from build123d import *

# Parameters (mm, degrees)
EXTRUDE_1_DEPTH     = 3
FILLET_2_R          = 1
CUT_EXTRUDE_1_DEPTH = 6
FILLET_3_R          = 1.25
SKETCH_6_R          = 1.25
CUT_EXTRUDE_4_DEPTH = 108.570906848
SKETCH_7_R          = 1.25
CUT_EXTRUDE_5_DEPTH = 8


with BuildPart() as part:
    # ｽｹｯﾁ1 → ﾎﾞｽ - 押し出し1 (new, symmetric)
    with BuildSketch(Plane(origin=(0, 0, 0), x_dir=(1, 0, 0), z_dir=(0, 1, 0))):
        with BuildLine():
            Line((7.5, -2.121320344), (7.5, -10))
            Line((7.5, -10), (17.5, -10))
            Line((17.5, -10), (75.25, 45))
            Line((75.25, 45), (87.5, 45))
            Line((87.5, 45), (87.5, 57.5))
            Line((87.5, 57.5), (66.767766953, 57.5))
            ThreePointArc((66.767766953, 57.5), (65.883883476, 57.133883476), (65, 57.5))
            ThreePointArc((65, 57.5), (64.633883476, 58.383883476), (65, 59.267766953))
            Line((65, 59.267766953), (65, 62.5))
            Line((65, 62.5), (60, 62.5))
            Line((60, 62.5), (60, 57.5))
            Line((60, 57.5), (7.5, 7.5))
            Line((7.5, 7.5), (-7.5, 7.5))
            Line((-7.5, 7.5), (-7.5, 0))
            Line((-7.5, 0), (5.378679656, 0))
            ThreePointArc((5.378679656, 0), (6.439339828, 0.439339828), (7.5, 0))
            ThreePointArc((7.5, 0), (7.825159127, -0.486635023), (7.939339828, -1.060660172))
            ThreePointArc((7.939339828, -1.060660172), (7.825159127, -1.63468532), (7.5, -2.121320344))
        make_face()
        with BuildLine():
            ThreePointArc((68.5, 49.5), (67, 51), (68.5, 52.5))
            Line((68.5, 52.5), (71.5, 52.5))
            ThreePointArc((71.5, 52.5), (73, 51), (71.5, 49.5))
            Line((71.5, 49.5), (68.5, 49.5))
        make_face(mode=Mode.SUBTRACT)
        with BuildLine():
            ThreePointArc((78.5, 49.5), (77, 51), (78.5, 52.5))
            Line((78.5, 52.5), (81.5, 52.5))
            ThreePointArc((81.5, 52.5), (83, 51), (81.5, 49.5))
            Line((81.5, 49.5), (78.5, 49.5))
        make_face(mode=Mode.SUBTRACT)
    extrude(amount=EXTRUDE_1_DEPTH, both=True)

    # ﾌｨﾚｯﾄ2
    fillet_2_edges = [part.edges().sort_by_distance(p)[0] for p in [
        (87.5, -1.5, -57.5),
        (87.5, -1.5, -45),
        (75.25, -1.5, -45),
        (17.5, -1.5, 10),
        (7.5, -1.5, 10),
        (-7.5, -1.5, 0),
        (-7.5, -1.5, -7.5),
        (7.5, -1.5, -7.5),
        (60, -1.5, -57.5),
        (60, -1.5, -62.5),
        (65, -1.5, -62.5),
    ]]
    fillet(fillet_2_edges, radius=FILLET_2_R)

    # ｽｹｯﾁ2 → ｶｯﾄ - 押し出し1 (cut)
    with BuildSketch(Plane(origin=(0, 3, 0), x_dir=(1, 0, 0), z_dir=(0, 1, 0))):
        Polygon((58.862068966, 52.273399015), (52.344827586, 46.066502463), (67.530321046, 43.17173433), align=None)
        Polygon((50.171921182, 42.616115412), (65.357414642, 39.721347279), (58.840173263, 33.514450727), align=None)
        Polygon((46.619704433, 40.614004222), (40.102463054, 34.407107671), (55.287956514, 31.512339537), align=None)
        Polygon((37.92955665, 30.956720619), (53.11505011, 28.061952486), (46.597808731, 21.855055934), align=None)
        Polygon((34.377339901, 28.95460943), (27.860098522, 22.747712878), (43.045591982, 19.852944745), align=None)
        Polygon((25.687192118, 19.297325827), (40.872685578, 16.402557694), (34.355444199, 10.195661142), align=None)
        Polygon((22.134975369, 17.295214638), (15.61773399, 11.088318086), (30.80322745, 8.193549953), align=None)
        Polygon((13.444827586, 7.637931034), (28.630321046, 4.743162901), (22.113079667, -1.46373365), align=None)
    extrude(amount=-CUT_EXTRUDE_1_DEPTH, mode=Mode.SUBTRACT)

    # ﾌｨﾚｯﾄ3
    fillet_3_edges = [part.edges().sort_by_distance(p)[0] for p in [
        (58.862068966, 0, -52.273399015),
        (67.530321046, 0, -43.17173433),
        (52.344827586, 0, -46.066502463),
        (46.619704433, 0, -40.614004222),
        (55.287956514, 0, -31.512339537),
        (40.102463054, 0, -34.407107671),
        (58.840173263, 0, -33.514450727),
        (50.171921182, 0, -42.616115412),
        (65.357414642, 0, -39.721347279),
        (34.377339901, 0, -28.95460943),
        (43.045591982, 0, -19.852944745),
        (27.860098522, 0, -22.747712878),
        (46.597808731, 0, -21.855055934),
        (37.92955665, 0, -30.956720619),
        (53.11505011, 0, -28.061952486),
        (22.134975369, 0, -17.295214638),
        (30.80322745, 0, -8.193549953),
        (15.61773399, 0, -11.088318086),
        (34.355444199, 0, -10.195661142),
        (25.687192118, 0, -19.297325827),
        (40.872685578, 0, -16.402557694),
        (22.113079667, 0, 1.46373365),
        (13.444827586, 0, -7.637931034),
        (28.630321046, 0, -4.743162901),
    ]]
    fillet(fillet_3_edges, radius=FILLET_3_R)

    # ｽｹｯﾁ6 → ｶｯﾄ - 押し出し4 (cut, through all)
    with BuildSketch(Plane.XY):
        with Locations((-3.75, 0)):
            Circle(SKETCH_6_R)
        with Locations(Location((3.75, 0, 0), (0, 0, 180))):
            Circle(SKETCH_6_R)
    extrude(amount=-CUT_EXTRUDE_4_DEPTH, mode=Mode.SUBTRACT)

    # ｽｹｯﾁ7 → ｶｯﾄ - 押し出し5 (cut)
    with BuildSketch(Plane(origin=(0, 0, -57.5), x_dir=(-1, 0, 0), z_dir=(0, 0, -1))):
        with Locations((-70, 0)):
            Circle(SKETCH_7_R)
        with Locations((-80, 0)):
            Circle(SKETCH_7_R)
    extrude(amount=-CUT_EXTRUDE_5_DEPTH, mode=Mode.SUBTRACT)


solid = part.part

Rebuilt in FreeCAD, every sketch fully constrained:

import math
import FreeCAD as App
import Part
import Sketcher

V = App.Vector


def edges_at(feature, points):
    """Names of the edges that pass closest to the given points."""
    edges = feature.Shape.Edges
    near = lambda p: min(range(len(edges)), key=lambda i: edges[i].distToShape(Part.Vertex(*p))[0])
    return sorted({f"Edge{near(p) + 1}" for p in points})

doc = App.newDocument("Part")
body = doc.addObject("PartDesign::Body", "Body")

sketch1 = body.newObject("Sketcher::SketchObject", "Sketch")
sketch1.AttachmentSupport = (doc.getObject("XZ_Plane"), [""])
sketch1.MapMode = "FlatFace"
sketch1.addGeometry(Part.LineSegment(V(7.5, 2.1, 0), V(7.5, 10, 0)), False)
sketch1.addGeometry(Part.LineSegment(V(7.5, 10, 0), V(17.5, 10, 0)), False)
sketch1.addGeometry(Part.LineSegment(V(17.5, 10, 0), V(75.2, -45, 0)), False)
sketch1.addGeometry(Part.LineSegment(V(75.2, -45, 0), V(87.5, -45, 0)), False)
sketch1.addGeometry(Part.LineSegment(V(87.5, -45, 0), V(87.5, -57.5, 0)), False)
sketch1.addGeometry(Part.LineSegment(V(87.5, -57.5, 0), V(66.8, -57.5, 0)), False)
sketch1.addGeometry(Part.ArcOfCircle(Part.Circle(V(65.9, -58.4, 0), V(0, 0, 1), 1.2), math.radians(45), math.radians(135)), False)
sketch1.addGeometry(Part.ArcOfCircle(Part.Circle(V(65.9, -58.4, 0), V(0, 0, 1), 1.2), math.radians(135), math.radians(225)), False)
sketch1.addGeometry(Part.LineSegment(V(65, -59.3, 0), V(65, -62.5, 0)), False)
sketch1.addGeometry(Part.LineSegment(V(65, -62.5, 0), V(60, -62.5, 0)), False)
sketch1.addGeometry(Part.LineSegment(V(60, -62.5, 0), V(60, -57.5, 0)), False)
sketch1.addGeometry(Part.LineSegment(V(60, -57.5, 0), V(7.5, -7.5, 0)), False)
sketch1.addGeometry(Part.LineSegment(V(7.5, -7.5, 0), V(-7.5, -7.5, 0)), False)
sketch1.addGeometry(Part.LineSegment(V(-7.5, -7.5, 0), V(-7.5, 0, 0)), False)
sketch1.addGeometry(Part.LineSegment(V(-7.5, 0, 0), V(5.4, 0, 0)), False)
sketch1.addGeometry(Part.ArcOfCircle(Part.Circle(V(6.4, 1.1, 0), V(0, 0, 1), 1.5), math.radians(-135), math.radians(-45)), False)
sketch1.addGeometry(Part.ArcOfCircle(Part.Circle(V(6.4, 1.1, 0), V(0, 0, 1), 1.5), math.radians(-45), math.radians(0)), False)
sketch1.addGeometry(Part.ArcOfCircle(Part.Circle(V(6.4, 1.1, 0), V(0, 0, 1), 1.5), math.radians(0), math.radians(45)), False)
sketch1.addGeometry(Part.LineSegment(V(71.5, -49.5, 0), V(68.5, -49.5, 0)), False)
sketch1.addGeometry(Part.ArcOfCircle(Part.Circle(V(68.5, -51, 0), V(0, 0, 1), 1.5), math.radians(90), math.radians(270)), False)
sketch1.addGeometry(Part.LineSegment(V(68.5, -52.5, 0), V(71.5, -52.5, 0)), False)
sketch1.addGeometry(Part.ArcOfCircle(Part.Circle(V(71.5, -51, 0), V(0, 0, 1), 1.5), math.radians(-90), math.radians(90)), False)
sketch1.addGeometry(Part.LineSegment(V(81.5, -49.5, 0), V(78.5, -49.5, 0)), False)
sketch1.addGeometry(Part.ArcOfCircle(Part.Circle(V(78.5, -51, 0), V(0, 0, 1), 1.5), math.radians(90), math.radians(270)), False)
sketch1.addGeometry(Part.LineSegment(V(78.5, -52.5, 0), V(81.5, -52.5, 0)), False)
sketch1.addGeometry(Part.ArcOfCircle(Part.Circle(V(81.5, -51, 0), V(0, 0, 1), 1.5), math.radians(-90), math.radians(90)), False)
sketch1.addConstraint(Sketcher.Constraint("Coincident", 0, 2, 1, 1))
sketch1.addConstraint(Sketcher.Constraint("Coincident", 1, 2, 2, 1))
sketch1.addConstraint(Sketcher.Constraint("Coincident", 2, 2, 3, 1))
sketch1.addConstraint(Sketcher.Constraint("Coincident", 3, 2, 4, 1))
sketch1.addConstraint(Sketcher.Constraint("Coincident", 4, 2, 5, 1))
sketch1.addConstraint(Sketcher.Constraint("Coincident", 5, 2, 6, 1))
sketch1.addConstraint(Sketcher.Constraint("Tangent", 6, 2, 7, 1))
sketch1.addConstraint(Sketcher.Constraint("Coincident", 7, 2, 8, 1))
sketch1.addConstraint(Sketcher.Constraint("Coincident", 8, 2, 9, 1))
sketch1.addConstraint(Sketcher.Constraint("Coincident", 9, 2, 10, 1))
sketch1.addConstraint(Sketcher.Constraint("Coincident", 10, 2, 11, 1))
sketch1.addConstraint(Sketcher.Constraint("Coincident", 11, 2, 12, 1))
sketch1.addConstraint(Sketcher.Constraint("Coincident", 12, 2, 13, 1))
sketch1.addConstraint(Sketcher.Constraint("Coincident", 13, 2, 14, 1))
sketch1.addConstraint(Sketcher.Constraint("Coincident", 14, 2, 15, 1))
sketch1.addConstraint(Sketcher.Constraint("Tangent", 15, 2, 16, 1))
sketch1.addConstraint(Sketcher.Constraint("Tangent", 16, 2, 17, 1))
sketch1.addConstraint(Sketcher.Constraint("Coincident", 17, 2, 0, 1))
sketch1.addConstraint(Sketcher.Constraint("Tangent", 18, 2, 19, 1))
sketch1.addConstraint(Sketcher.Constraint("Tangent", 19, 2, 20, 1))
sketch1.addConstraint(Sketcher.Constraint("Tangent", 20, 2, 21, 1))
sketch1.addConstraint(Sketcher.Constraint("Tangent", 21, 2, 18, 1))
sketch1.addConstraint(Sketcher.Constraint("Tangent", 22, 2, 23, 1))
sketch1.addConstraint(Sketcher.Constraint("Tangent", 23, 2, 24, 1))
sketch1.addConstraint(Sketcher.Constraint("Tangent", 24, 2, 25, 1))
sketch1.addConstraint(Sketcher.Constraint("Tangent", 25, 2, 22, 1))
sketch1.addConstraint(Sketcher.Constraint("Vertical", 0))
sketch1.addConstraint(Sketcher.Constraint("Horizontal", 1))
sketch1.addConstraint(Sketcher.Constraint("Horizontal", 3))
sketch1.addConstraint(Sketcher.Constraint("Vertical", 4))
sketch1.addConstraint(Sketcher.Constraint("Horizontal", 5))
sketch1.addConstraint(Sketcher.Constraint("Vertical", 8))
sketch1.addConstraint(Sketcher.Constraint("Horizontal", 9))
sketch1.addConstraint(Sketcher.Constraint("Vertical", 10))
sketch1.addConstraint(Sketcher.Constraint("Horizontal", 12))
sketch1.addConstraint(Sketcher.Constraint("Vertical", 13))
sketch1.addConstraint(Sketcher.Constraint("Horizontal", 14))
sketch1.addConstraint(Sketcher.Constraint("Horizontal", 18))
sketch1.addConstraint(Sketcher.Constraint("Horizontal", 20))
sketch1.addConstraint(Sketcher.Constraint("Horizontal", 22))
sketch1.addConstraint(Sketcher.Constraint("Horizontal", 24))
sketch1.addConstraint(Sketcher.Constraint("Coincident", 17, 3, 15, 3))
sketch1.addConstraint(Sketcher.Constraint("Equal", 6, 7))
sketch1.addConstraint(Sketcher.Constraint("Equal", 17, 19))
sketch1.addConstraint(Sketcher.Constraint("Equal", 21, 23))
sketch1.addConstraint(Sketcher.Constraint("Symmetric", 13, 2, 15, 2, -1, 1))
sketch1.addConstraint(Sketcher.Constraint("PointOnObject", 13, 2, -1))
sketch1.addConstraint(Sketcher.Constraint("Parallel", 2, 11))
sketch1.addConstraint(Sketcher.Constraint("Horizontal", 21, 3, 23, 3))
sketch1.addConstraint(Sketcher.Constraint("Horizontal", 5, 2, 6, 2))
sketch1.addConstraint(Sketcher.Constraint("Horizontal", 6, 2, 10, 2))
sketch1.addConstraint(Sketcher.Constraint("Horizontal", 17, 3, 16, 2))
sketch1.addConstraint(Sketcher.Constraint("Vertical", 6, 2, 7, 2))
sketch1.addConstraint(Sketcher.Constraint("Vertical", 0, 2, 11, 2))
sketch1.addConstraint(Sketcher.Constraint("Vertical", 11, 2, 15, 2))
sketch1.addConstraint(Sketcher.Constraint("Equal", 20, 22))
sketch1.addConstraint(Sketcher.Constraint("Equal", 9, 10))
sketch1.addConstraint(Sketcher.Constraint("Radius", 15, 1.5))
sketch1.addConstraint(Sketcher.Constraint("DistanceX", 1, 1, 1, 2, 10.0))
sketch1.addConstraint(Sketcher.Constraint("DistanceX", 9, 2, 9, 1, 5.0))
sketch1.addConstraint(Sketcher.Constraint("DistanceX", 12, 2, 12, 1, 15.0))
sketch1.addConstraint(Sketcher.Constraint("DistanceX", 18, 2, 18, 1, 3.0))
sketch1.addConstraint(Sketcher.Constraint("Radius", 6, 1.25))
sketch1.addConstraint(Sketcher.Constraint("DistanceY", 4, 2, 4, 1, 12.5))
sketch1.addConstraint(Sketcher.Constraint("DistanceY", 13, 1, 13, 2, 7.5))
sketch1.addConstraint(Sketcher.Constraint("DistanceY", 19, 3, -1, 1, 51.0))
sketch1.addConstraint(Sketcher.Constraint("DistanceY", -1, 1, 0, 2, 10.0))
sketch1.addConstraint(Sketcher.Constraint("DistanceY", 2, 2, -1, 1, 45.0))
sketch1.addConstraint(Sketcher.Constraint("DistanceX", -1, 1, 6, 2, 65.0))
sketch1.addConstraint(Sketcher.Constraint("DistanceX", 21, 3, 23, 3, 7.0))
sketch1.addConstraint(Sketcher.Constraint("DistanceX", 0, 2, 19, 3, 61.0))
sketch1.addConstraint(Sketcher.Constraint("DistanceX", 25, 3, 3, 2, 6.0))
sketch1.addConstraint(Sketcher.Constraint("DistanceX", 14, 1, 14, 2, 12.87868))
sketch1.addConstraint(Sketcher.Constraint("DistanceX", 5, 2, 5, 1, 20.732233))
pad1 = body.newObject("PartDesign::Pad", "Pad")
pad1.Profile = sketch1
pad1.Length = 6
pad1.Midplane = True
doc.recompute()

fillet = body.newObject("PartDesign::Fillet", "Fillet")
fillet.Base = (pad1, edges_at(pad1, [
    (87.5, -1.5, -57.5),
    (87.5, -1.5, -45),
    (75.25, -1.5, -45),
    (17.5, -1.5, 10),
    (7.5, 0, 10),
    (-7.5, -1.5, 0),
    (-7.5, -1.5, -7.5),
    (7.5, -1.5, -7.5),
    (60, -1.5, -57.5),
    (60, -1.5, -62.5),
    (65, -1.5, -62.5),
]))
fillet.Radius = 1

sketch2 = body.newObject("Sketcher::SketchObject", "Sketch001")
sketch2.AttachmentSupport = (doc.getObject("XZ_Plane"), [""])
sketch2.MapMode = "FlatFace"
sketch2.AttachmentOffset = App.Placement(V(0, 0, -3), App.Rotation())
sketch2.addGeometry(Part.LineSegment(V(59, -52, 0), V(52, -46, 0)), False)
sketch2.addGeometry(Part.LineSegment(V(52, -46, 0), V(68, -43, 0)), False)
sketch2.addGeometry(Part.LineSegment(V(68, -43, 0), V(59, -52, 0)), False)
sketch2.addGeometry(Part.LineSegment(V(65, -40, 0), V(50, -43, 0)), False)
sketch2.addGeometry(Part.LineSegment(V(50, -43, 0), V(59, -34, 0)), False)
sketch2.addGeometry(Part.LineSegment(V(59, -34, 0), V(65, -40, 0)), False)
sketch2.addGeometry(Part.LineSegment(V(47, -41, 0), V(40, -34, 0)), False)
sketch2.addGeometry(Part.LineSegment(V(40, -34, 0), V(55, -32, 0)), False)
sketch2.addGeometry(Part.LineSegment(V(55, -32, 0), V(47, -41, 0)), False)
sketch2.addGeometry(Part.LineSegment(V(53, -28, 0), V(38, -31, 0)), False)
sketch2.addGeometry(Part.LineSegment(V(38, -31, 0), V(47, -22, 0)), False)
sketch2.addGeometry(Part.LineSegment(V(47, -22, 0), V(53, -28, 0)), False)
sketch2.addGeometry(Part.LineSegment(V(34, -29, 0), V(28, -23, 0)), False)
sketch2.addGeometry(Part.LineSegment(V(28, -23, 0), V(43, -20, 0)), False)
sketch2.addGeometry(Part.LineSegment(V(43, -20, 0), V(34, -29, 0)), False)
sketch2.addGeometry(Part.LineSegment(V(41, -16, 0), V(26, -19, 0)), False)
sketch2.addGeometry(Part.LineSegment(V(26, -19, 0), V(34, -10, 0)), False)
sketch2.addGeometry(Part.LineSegment(V(34, -10, 0), V(41, -16, 0)), False)
sketch2.addGeometry(Part.LineSegment(V(22, -17, 0), V(16, -11, 0)), False)
sketch2.addGeometry(Part.LineSegment(V(16, -11, 0), V(31, -8, 0)), False)
sketch2.addGeometry(Part.LineSegment(V(31, -8, 0), V(22, -17, 0)), False)
sketch2.addGeometry(Part.LineSegment(V(29, -5, 0), V(13, -8, 0)), False)
sketch2.addGeometry(Part.LineSegment(V(13, -8, 0), V(22, 1, 0)), False)
sketch2.addGeometry(Part.LineSegment(V(22, 1, 0), V(29, -5, 0)), False)
sketch2.addConstraint(Sketcher.Constraint("Coincident", 0, 2, 1, 1))
sketch2.addConstraint(Sketcher.Constraint("Coincident", 1, 2, 2, 1))
sketch2.addConstraint(Sketcher.Constraint("Coincident", 2, 2, 0, 1))
sketch2.addConstraint(Sketcher.Constraint("Coincident", 3, 2, 4, 1))
sketch2.addConstraint(Sketcher.Constraint("Coincident", 4, 2, 5, 1))
sketch2.addConstraint(Sketcher.Constraint("Coincident", 5, 2, 3, 1))
sketch2.addConstraint(Sketcher.Constraint("Coincident", 6, 2, 7, 1))
sketch2.addConstraint(Sketcher.Constraint("Coincident", 7, 2, 8, 1))
sketch2.addConstraint(Sketcher.Constraint("Coincident", 8, 2, 6, 1))
sketch2.addConstraint(Sketcher.Constraint("Coincident", 9, 2, 10, 1))
sketch2.addConstraint(Sketcher.Constraint("Coincident", 10, 2, 11, 1))
sketch2.addConstraint(Sketcher.Constraint("Coincident", 11, 2, 9, 1))
sketch2.addConstraint(Sketcher.Constraint("Coincident", 12, 2, 13, 1))
sketch2.addConstraint(Sketcher.Constraint("Coincident", 13, 2, 14, 1))
sketch2.addConstraint(Sketcher.Constraint("Coincident", 14, 2, 12, 1))
sketch2.addConstraint(Sketcher.Constraint("Coincident", 15, 2, 16, 1))
sketch2.addConstraint(Sketcher.Constraint("Coincident", 16, 2, 17, 1))
sketch2.addConstraint(Sketcher.Constraint("Coincident", 17, 2, 15, 1))
sketch2.addConstraint(Sketcher.Constraint("Coincident", 18, 2, 19, 1))
sketch2.addConstraint(Sketcher.Constraint("Coincident", 19, 2, 20, 1))
sketch2.addConstraint(Sketcher.Constraint("Coincident", 20, 2, 18, 1))
sketch2.addConstraint(Sketcher.Constraint("Coincident", 21, 2, 22, 1))
sketch2.addConstraint(Sketcher.Constraint("Coincident", 22, 2, 23, 1))
sketch2.addConstraint(Sketcher.Constraint("Coincident", 23, 2, 21, 1))
sketch2.addConstraint(Sketcher.Constraint("Perpendicular", 0, 2))
sketch2.addConstraint(Sketcher.Constraint("Parallel", 1, 3))
sketch2.addConstraint(Sketcher.Constraint("Parallel", 2, 4))
sketch2.addConstraint(Sketcher.Constraint("Perpendicular", 4, 5))
sketch2.addConstraint(Sketcher.Constraint("Parallel", 5, 6))
sketch2.addConstraint(Sketcher.Constraint("Parallel", 3, 7))
sketch2.addConstraint(Sketcher.Constraint("Perpendicular", 6, 8))
sketch2.addConstraint(Sketcher.Constraint("Parallel", 7, 9))
sketch2.addConstraint(Sketcher.Constraint("Parallel", 8, 10))
sketch2.addConstraint(Sketcher.Constraint("Perpendicular", 10, 11))
sketch2.addConstraint(Sketcher.Constraint("Parallel", 11, 12))
sketch2.addConstraint(Sketcher.Constraint("Parallel", 9, 13))
sketch2.addConstraint(Sketcher.Constraint("Perpendicular", 12, 14))
sketch2.addConstraint(Sketcher.Constraint("Parallel", 13, 15))
sketch2.addConstraint(Sketcher.Constraint("Parallel", 14, 16))
sketch2.addConstraint(Sketcher.Constraint("Perpendicular", 16, 17))
sketch2.addConstraint(Sketcher.Constraint("Parallel", 17, 18))
sketch2.addConstraint(Sketcher.Constraint("Parallel", 15, 19))
sketch2.addConstraint(Sketcher.Constraint("Perpendicular", 18, 20))
sketch2.addConstraint(Sketcher.Constraint("Parallel", 19, 21))
sketch2.addConstraint(Sketcher.Constraint("Parallel", 20, 22))
sketch2.addConstraint(Sketcher.Constraint("Perpendicular", 22, 23))
sketch2.addConstraint(Sketcher.Constraint("Equal", 1, 3))
sketch2.addConstraint(Sketcher.Constraint("Equal", 5, 6))
sketch2.addConstraint(Sketcher.Constraint("Equal", 7, 9))
sketch2.addConstraint(Sketcher.Constraint("Equal", 11, 12))
sketch2.addConstraint(Sketcher.Constraint("Equal", 13, 15))
sketch2.addConstraint(Sketcher.Constraint("Equal", 17, 18))
sketch2.addConstraint(Sketcher.Constraint("Equal", 19, 21))
sketch2.addConstraint(Sketcher.Constraint("Distance", 0, 9.0))
sketch2.addConstraint(Sketcher.Constraint("DistanceY", 2, 2, -1, 1, 52.273399))
sketch2.addConstraint(Sketcher.Constraint("DistanceX", -1, 1, 12, 2, 27.860099))
sketch2.addConstraint(Sketcher.Constraint("DistanceX", 3, 2, 1, 2, 17.3584))
sketch2.addConstraint(Sketcher.Constraint("DistanceY", 0, 2, 8, 2, 5.452498))
sketch2.addConstraint(Sketcher.Constraint("DistanceX", 9, 2, 7, 2, 17.3584))
sketch2.addConstraint(Sketcher.Constraint("DistanceY", 4, 2, 11, 2, 5.452498))
sketch2.addConstraint(Sketcher.Constraint("DistanceY", 6, 2, 14, 2, 5.452498))
sketch2.addConstraint(Sketcher.Constraint("DistanceX", 15, 2, 13, 2, 17.3584))
sketch2.addConstraint(Sketcher.Constraint("DistanceY", 10, 2, 17, 2, 5.452498))
sketch2.addConstraint(Sketcher.Constraint("DistanceY", 12, 2, 20, 2, 5.452498))
sketch2.addConstraint(Sketcher.Constraint("DistanceX", 21, 2, 19, 2, 17.3584))
sketch2.addConstraint(Sketcher.Constraint("DistanceY", 16, 2, 23, 2, 5.452498))
sketch2.addConstraint(Sketcher.Constraint("DistanceX", -1, 1, 1, 2, 67.530321))
sketch2.addConstraint(Sketcher.Constraint("DistanceX", -1, 1, 2, 2, 58.862069))
sketch2.addConstraint(Sketcher.Constraint("DistanceY", 4, 2, -1, 1, 33.514451))
sketch2.addConstraint(Sketcher.Constraint("DistanceY", 7, 2, -1, 1, 31.51234))
sketch2.addConstraint(Sketcher.Constraint("DistanceX", -1, 1, 10, 2, 46.597809))
sketch2.addConstraint(Sketcher.Constraint("DistanceX", -1, 1, 22, 2, 22.11308))
pocket1 = body.newObject("PartDesign::Pocket", "Pocket")
pocket1.Profile = sketch2
pocket1.Length = 6
pocket1.Reversed = True
doc.recompute()

fillet2 = body.newObject("PartDesign::Fillet", "Fillet001")
fillet2.Base = (pocket1, edges_at(pocket1, [
    (58.862, 0, -52.273),
    (67.53, 0, -43.172),
    (52.345, 0, -46.067),
    (46.62, 0, -40.614),
    (55.288, 0, -31.512),
    (40.102, 0, -34.407),
    (58.84, 0, -33.514),
    (50.172, 0, -42.616),
    (65.357, 0, -39.721),
    (34.377, 0, -28.955),
    (43.046, 0, -19.853),
    (27.86, 0, -22.748),
    (46.598, 0, -21.855),
    (37.93, 0, -30.957),
    (53.115, 0, -28.062),
    (22.135, 0, -17.295),
    (30.803, 0, -8.194),
    (15.618, 0, -11.088),
    (34.355, 0, -10.196),
    (25.687, 0, -19.297),
    (40.873, 0, -16.403),
    (22.113, 0, 1.464),
    (13.445, 0, -7.638),
    (28.63, 0, -4.743),
]))
fillet2.Radius = 1.25

sketch3 = body.newObject("Sketcher::SketchObject", "Sketch002")
sketch3.AttachmentSupport = (doc.getObject("XY_Plane"), [""])
sketch3.MapMode = "FlatFace"
sketch3.addGeometry(Part.Circle(V(-3.8, 0, 0), V(0, 0, 1), 1.2), False)
sketch3.addGeometry(Part.Circle(V(3.8, 0, 0), V(0, 0, 1), 1.2), False)
sketch3.addConstraint(Sketcher.Constraint("Equal", 0, 1))
sketch3.addConstraint(Sketcher.Constraint("Symmetric", 0, 3, 1, 3, -1, 1))
sketch3.addConstraint(Sketcher.Constraint("PointOnObject", 0, 3, -1))
sketch3.addConstraint(Sketcher.Constraint("Diameter", 0, 2.5))
sketch3.addConstraint(Sketcher.Constraint("DistanceX", 0, 3, 1, 3, 7.5))
pocket2 = body.newObject("PartDesign::Pocket", "Pocket001")
pocket2.Profile = sketch3
pocket2.Type = "ThroughAll"

sketch4 = body.newObject("Sketcher::SketchObject", "Sketch003")
sketch4.AttachmentSupport = (doc.getObject("XY_Plane"), [""])
sketch4.MapMode = "FlatFace"
sketch4.AttachmentOffset = App.Placement(V(0, 0, -57.5), App.Rotation())
sketch4.addGeometry(Part.Circle(V(70, 0, 0), V(0, 0, 1), 1.2), False)
sketch4.addGeometry(Part.Circle(V(80, 0, 0), V(0, 0, 1), 1.2), False)
sketch4.addConstraint(Sketcher.Constraint("Equal", 0, 1))
sketch4.addConstraint(Sketcher.Constraint("PointOnObject", 0, 3, -1))
sketch4.addConstraint(Sketcher.Constraint("PointOnObject", 1, 3, -1))
sketch4.addConstraint(Sketcher.Constraint("Diameter", 0, 2.5))
sketch4.addConstraint(Sketcher.Constraint("DistanceX", -1, 1, 0, 3, 70.0))
sketch4.addConstraint(Sketcher.Constraint("DistanceX", -1, 1, 1, 3, 80.0))
pocket3 = body.newObject("PartDesign::Pocket", "Pocket002")
pocket3.Profile = sketch4
pocket3.Length = 8
pocket3.Reversed = True

doc.recompute()
